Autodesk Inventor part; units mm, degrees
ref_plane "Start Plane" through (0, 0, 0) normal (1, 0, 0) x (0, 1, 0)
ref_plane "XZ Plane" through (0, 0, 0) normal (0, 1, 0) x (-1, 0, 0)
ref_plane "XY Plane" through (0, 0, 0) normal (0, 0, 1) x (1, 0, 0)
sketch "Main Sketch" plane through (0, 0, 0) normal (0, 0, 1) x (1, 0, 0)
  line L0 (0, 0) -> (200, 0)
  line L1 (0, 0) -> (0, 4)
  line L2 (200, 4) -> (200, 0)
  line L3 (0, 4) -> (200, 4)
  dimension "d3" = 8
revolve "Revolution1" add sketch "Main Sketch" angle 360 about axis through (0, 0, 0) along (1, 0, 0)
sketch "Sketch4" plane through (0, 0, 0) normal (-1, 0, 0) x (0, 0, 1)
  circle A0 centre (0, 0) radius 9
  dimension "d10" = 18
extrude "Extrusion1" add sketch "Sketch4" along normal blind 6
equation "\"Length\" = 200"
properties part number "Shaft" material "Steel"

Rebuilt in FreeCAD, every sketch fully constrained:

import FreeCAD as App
import Part
import Sketcher
Q = App.Units.Quantity


def add_polygon(sketch, points):
    """Adds a closed chain of lines whose ends are joined by coincident constraints."""
    first, n = sketch.GeometryCount, len(points)
    for a, b in zip(points, points[1:] + points[:1]):
        sketch.addGeometry(Part.LineSegment(App.Vector(*a, 0), App.Vector(*b, 0)), False)
    for i in range(n):
        sketch.addConstraint(Sketcher.Constraint("Coincident", first + i, 2, first + (i + 1) % n, 1))

doc = App.newDocument("Part")
body = doc.addObject("PartDesign::Body", "Body")

sketch1 = body.newObject("Sketcher::SketchObject", "Sketch")
sketch1.AttachmentSupport = (doc.getObject("XY_Plane"), [""])
sketch1.MapMode = "FlatFace"
add_polygon(sketch1, [(0, 4), (0, 0), (200, 0), (200, 4)])
sketch1.addConstraint(Sketcher.Constraint("Vertical", 0))
sketch1.addConstraint(Sketcher.Constraint("Horizontal", 1))
sketch1.addConstraint(Sketcher.Constraint("Vertical", 2))
sketch1.addConstraint(Sketcher.Constraint("Horizontal", 3))
sketch1.addConstraint(Sketcher.Constraint("Coincident", 0, 2, -1, 1))
sketch1.addConstraint(Sketcher.Constraint("DistanceX", 1, 1, 1, 2, Q("200 mm")))
sketch1.addConstraint(Sketcher.Constraint("DistanceY", 0, 2, 0, 1, Q("4 mm")))
revolution = body.newObject("PartDesign::Revolution", "Revolution")
revolution.Profile = sketch1
revolution.ReferenceAxis = (sketch1, ["H_Axis"])
revolution.Angle = 360

sketch2 = body.newObject("Sketcher::SketchObject", "Sketch001")
sketch2.AttachmentSupport = (doc.getObject("YZ_Plane"), [""])
sketch2.MapMode = "FlatFace"
sketch2.addGeometry(Part.Circle(App.Vector(0, 0, 0), App.Vector(0, 0, 1), 9), False)
sketch2.addConstraint(Sketcher.Constraint("Coincident", 0, 3, -1, 1))
sketch2.addConstraint(Sketcher.Constraint("Diameter", 0, Q("18 mm")))
pad1 = body.newObject("PartDesign::Pad", "Pad")
pad1.Profile = sketch2
pad1.Length = 6
pad1.Reversed = True

doc.recompute()
